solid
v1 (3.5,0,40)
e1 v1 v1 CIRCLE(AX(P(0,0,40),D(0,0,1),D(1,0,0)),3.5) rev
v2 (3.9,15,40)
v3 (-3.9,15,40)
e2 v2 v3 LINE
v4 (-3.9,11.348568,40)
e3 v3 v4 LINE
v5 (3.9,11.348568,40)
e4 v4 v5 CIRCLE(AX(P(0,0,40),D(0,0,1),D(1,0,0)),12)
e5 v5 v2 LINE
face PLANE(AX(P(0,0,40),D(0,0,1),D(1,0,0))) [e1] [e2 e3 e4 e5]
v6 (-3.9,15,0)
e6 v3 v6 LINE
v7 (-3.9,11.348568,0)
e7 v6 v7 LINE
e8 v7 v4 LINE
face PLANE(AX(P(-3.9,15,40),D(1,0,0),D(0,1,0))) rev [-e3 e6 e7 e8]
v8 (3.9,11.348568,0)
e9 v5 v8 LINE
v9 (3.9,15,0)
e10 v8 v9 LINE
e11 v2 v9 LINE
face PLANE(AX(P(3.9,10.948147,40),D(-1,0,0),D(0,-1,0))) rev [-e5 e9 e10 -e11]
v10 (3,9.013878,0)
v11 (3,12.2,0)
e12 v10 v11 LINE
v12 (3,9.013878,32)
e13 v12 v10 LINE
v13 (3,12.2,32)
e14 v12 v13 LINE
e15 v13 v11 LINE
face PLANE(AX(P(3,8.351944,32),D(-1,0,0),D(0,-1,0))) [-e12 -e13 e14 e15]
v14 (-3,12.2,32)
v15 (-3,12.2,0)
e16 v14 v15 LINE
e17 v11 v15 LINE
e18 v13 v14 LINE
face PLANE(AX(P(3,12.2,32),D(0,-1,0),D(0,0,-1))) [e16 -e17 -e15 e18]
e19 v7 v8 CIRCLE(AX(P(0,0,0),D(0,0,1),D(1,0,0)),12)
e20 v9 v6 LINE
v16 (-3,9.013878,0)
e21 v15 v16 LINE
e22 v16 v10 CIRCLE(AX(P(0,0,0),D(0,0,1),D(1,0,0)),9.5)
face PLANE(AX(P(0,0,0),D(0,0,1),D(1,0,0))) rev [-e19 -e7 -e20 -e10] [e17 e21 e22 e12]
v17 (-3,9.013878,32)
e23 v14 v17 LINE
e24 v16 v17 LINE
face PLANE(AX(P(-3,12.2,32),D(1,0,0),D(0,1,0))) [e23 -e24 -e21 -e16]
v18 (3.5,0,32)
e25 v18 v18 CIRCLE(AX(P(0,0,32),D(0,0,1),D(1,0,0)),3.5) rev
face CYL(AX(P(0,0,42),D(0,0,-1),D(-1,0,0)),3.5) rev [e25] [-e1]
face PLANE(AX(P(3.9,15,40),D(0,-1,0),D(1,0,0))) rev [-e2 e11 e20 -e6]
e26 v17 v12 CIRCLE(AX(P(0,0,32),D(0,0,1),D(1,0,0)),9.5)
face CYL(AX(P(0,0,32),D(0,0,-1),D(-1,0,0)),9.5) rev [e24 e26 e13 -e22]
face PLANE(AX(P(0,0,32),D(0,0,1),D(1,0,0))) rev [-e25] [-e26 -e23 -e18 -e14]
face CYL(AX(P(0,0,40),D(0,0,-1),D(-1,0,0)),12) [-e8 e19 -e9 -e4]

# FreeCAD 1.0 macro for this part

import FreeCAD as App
import Part
import Sketcher

V = App.Vector

doc = App.newDocument("Part")
params = doc.addObject("Spreadsheet::Sheet", "Params")
for row, (alias, value) in enumerate([
    ("sketch1_diameter", "24 mm"),
    ("pad1_length", "40 mm"),
    ("sketch2_width", "7.8 mm"),
    ("pad2_length", "40 mm"),
    ("sketch3_diameter", "19 mm"),
    ("pocket1_length", "32 mm"),
    ("sketch4_width", "6 mm"),
    ("pocket2_length", "32 mm"),
    ("sketch5_diameter", "7 mm"),
    ("pocket3_length", "42 mm"),
], start=1):
    params.set(f"A{row}", alias)
    params.set(f"B{row}", "=" + value)
    params.setAlias(f"B{row}", alias)

body = doc.addObject("PartDesign::Body", "Body")

# Sketch on XY plane
sketch1 = body.newObject("Sketcher::SketchObject", "Sketch")
sketch1.AttachmentSupport = (doc.getObject("XY_Plane"), [""])
sketch1.MapMode = "FlatFace"
sketch1.addGeometry(Part.Circle(V(0, 0, 0), V(0, 0, 1), 12), False)
sketch1.addConstraint(Sketcher.Constraint("Coincident", 0, 3, -1, 1))
sketch1.addConstraint(Sketcher.Constraint("Diameter", 0, 24.0))
sketch1.setExpression("Constraints[1]", "Params.sketch1_diameter")
pad1 = body.newObject("PartDesign::Pad", "Pad")
pad1.Profile = sketch1
pad1.setExpression("Length", "Params.pad1_length")

# Sketch on XY plane
sketch2 = body.newObject("Sketcher::SketchObject", "Sketch001")
sketch2.AttachmentSupport = (doc.getObject("XY_Plane"), [""])
sketch2.MapMode = "FlatFace"
sketch2.addGeometry(Part.LineSegment(V(-3.9, 15, 0), V(-3.9, 10.948147, 0)), False)
sketch2.addGeometry(Part.LineSegment(V(-3.9, 10.948147, 0), V(3.9, 10.948147, 0)), False)
sketch2.addGeometry(Part.LineSegment(V(3.9, 10.948147, 0), V(3.9, 15, 0)), False)
sketch2.addGeometry(Part.LineSegment(V(3.9, 15, 0), V(-3.9, 15, 0)), False)
sketch2.addConstraint(Sketcher.Constraint("Coincident", 0, 2, 1, 1))
sketch2.addConstraint(Sketcher.Constraint("Coincident", 1, 2, 2, 1))
sketch2.addConstraint(Sketcher.Constraint("Coincident", 2, 2, 3, 1))
sketch2.addConstraint(Sketcher.Constraint("Coincident", 3, 2, 0, 1))
sketch2.addConstraint(Sketcher.Constraint("Vertical", 0))
sketch2.addConstraint(Sketcher.Constraint("Horizontal", 1))
sketch2.addConstraint(Sketcher.Constraint("Vertical", 2))
sketch2.addConstraint(Sketcher.Constraint("Horizontal", 3))
sketch2.addConstraint(Sketcher.Constraint("DistanceX", 1, 1, 1, 2, 7.8))
sketch2.addConstraint(Sketcher.Constraint("DistanceY", -1, 1, 2, 2, 15.0))
sketch2.addConstraint(Sketcher.Constraint("DistanceX", 0, 2, -1, 1, 3.9))
sketch2.addConstraint(Sketcher.Constraint("DistanceY", 0, 2, 0, 1, 4.051853))
sketch2.setExpression("Constraints[8]", "Params.sketch2_width")
pad2 = body.newObject("PartDesign::Pad", "Pad001")
pad2.Profile = sketch2
pad2.setExpression("Length", "Params.pad2_length")

# Sketch on XY plane
sketch3 = body.newObject("Sketcher::SketchObject", "Sketch002")
sketch3.AttachmentSupport = (doc.getObject("XY_Plane"), [""])
sketch3.MapMode = "FlatFace"
sketch3.addGeometry(Part.Circle(V(0, 0, 0), V(0, 0, 1), 9.5), False)
sketch3.addConstraint(Sketcher.Constraint("Coincident", 0, 3, -1, 1))
sketch3.addConstraint(Sketcher.Constraint("Diameter", 0, 19.0))
sketch3.setExpression("Constraints[1]", "Params.sketch3_diameter")
pocket1 = body.newObject("PartDesign::Pocket", "Pocket")
pocket1.Profile = sketch3
pocket1.setExpression("Length", "Params.pocket1_length")
pocket1.Reversed = True

# Sketch on XY plane
sketch4 = body.newObject("Sketcher::SketchObject", "Sketch003")
sketch4.AttachmentSupport = (doc.getObject("XY_Plane"), [""])
sketch4.MapMode = "FlatFace"
sketch4.addGeometry(Part.LineSegment(V(-3, 12.2, 0), V(-3, 8.351944, 0)), False)
sketch4.addGeometry(Part.LineSegment(V(-3, 8.351944, 0), V(3, 8.351944, 0)), False)
sketch4.addGeometry(Part.LineSegment(V(3, 8.351944, 0), V(3, 12.2, 0)), False)
sketch4.addGeometry(Part.LineSegment(V(3, 12.2, 0), V(-3, 12.2, 0)), False)
sketch4.addConstraint(Sketcher.Constraint("Coincident", 0, 2, 1, 1))
sketch4.addConstraint(Sketcher.Constraint("Coincident", 1, 2, 2, 1))
sketch4.addConstraint(Sketcher.Constraint("Coincident", 2, 2, 3, 1))
sketch4.addConstraint(Sketcher.Constraint("Coincident", 3, 2, 0, 1))
sketch4.addConstraint(Sketcher.Constraint("Vertical", 0))
sketch4.addConstraint(Sketcher.Constraint("Horizontal", 1))
sketch4.addConstraint(Sketcher.Constraint("Vertical", 2))
sketch4.addConstraint(Sketcher.Constraint("Horizontal", 3))
sketch4.addConstraint(Sketcher.Constraint("DistanceX", 1, 1, 1, 2, 6.0))
sketch4.addConstraint(Sketcher.Constraint("DistanceX", 0, 2, -1, 1, 3.0))
sketch4.addConstraint(Sketcher.Constraint("DistanceY", -1, 1, 2, 2, 12.2))
sketch4.addConstraint(Sketcher.Constraint("DistanceY", 0, 2, 0, 1, 3.848056))
sketch4.setExpression("Constraints[8]", "Params.sketch4_width")
pocket2 = body.newObject("PartDesign::Pocket", "Pocket001")
pocket2.Profile = sketch4
pocket2.setExpression("Length", "Params.pocket2_length")
pocket2.Reversed = True

# Sketch on XY plane
sketch5 = body.newObject("Sketcher::SketchObject", "Sketch004")
sketch5.AttachmentSupport = (doc.getObject("XY_Plane"), [""])
sketch5.MapMode = "FlatFace"
sketch5.addGeometry(Part.Circle(V(0, 0, 0), V(0, 0, 1), 3.5), False)
sketch5.addConstraint(Sketcher.Constraint("Coincident", 0, 3, -1, 1))
sketch5.addConstraint(Sketcher.Constraint("Diameter", 0, 7.0))
sketch5.setExpression("Constraints[1]", "Params.sketch5_diameter")
pocket3 = body.newObject("PartDesign::Pocket", "Pocket002")
pocket3.Profile = sketch5
pocket3.setExpression("Length", "Params.pocket3_length")
pocket3.Reversed = True

doc.recompute()
